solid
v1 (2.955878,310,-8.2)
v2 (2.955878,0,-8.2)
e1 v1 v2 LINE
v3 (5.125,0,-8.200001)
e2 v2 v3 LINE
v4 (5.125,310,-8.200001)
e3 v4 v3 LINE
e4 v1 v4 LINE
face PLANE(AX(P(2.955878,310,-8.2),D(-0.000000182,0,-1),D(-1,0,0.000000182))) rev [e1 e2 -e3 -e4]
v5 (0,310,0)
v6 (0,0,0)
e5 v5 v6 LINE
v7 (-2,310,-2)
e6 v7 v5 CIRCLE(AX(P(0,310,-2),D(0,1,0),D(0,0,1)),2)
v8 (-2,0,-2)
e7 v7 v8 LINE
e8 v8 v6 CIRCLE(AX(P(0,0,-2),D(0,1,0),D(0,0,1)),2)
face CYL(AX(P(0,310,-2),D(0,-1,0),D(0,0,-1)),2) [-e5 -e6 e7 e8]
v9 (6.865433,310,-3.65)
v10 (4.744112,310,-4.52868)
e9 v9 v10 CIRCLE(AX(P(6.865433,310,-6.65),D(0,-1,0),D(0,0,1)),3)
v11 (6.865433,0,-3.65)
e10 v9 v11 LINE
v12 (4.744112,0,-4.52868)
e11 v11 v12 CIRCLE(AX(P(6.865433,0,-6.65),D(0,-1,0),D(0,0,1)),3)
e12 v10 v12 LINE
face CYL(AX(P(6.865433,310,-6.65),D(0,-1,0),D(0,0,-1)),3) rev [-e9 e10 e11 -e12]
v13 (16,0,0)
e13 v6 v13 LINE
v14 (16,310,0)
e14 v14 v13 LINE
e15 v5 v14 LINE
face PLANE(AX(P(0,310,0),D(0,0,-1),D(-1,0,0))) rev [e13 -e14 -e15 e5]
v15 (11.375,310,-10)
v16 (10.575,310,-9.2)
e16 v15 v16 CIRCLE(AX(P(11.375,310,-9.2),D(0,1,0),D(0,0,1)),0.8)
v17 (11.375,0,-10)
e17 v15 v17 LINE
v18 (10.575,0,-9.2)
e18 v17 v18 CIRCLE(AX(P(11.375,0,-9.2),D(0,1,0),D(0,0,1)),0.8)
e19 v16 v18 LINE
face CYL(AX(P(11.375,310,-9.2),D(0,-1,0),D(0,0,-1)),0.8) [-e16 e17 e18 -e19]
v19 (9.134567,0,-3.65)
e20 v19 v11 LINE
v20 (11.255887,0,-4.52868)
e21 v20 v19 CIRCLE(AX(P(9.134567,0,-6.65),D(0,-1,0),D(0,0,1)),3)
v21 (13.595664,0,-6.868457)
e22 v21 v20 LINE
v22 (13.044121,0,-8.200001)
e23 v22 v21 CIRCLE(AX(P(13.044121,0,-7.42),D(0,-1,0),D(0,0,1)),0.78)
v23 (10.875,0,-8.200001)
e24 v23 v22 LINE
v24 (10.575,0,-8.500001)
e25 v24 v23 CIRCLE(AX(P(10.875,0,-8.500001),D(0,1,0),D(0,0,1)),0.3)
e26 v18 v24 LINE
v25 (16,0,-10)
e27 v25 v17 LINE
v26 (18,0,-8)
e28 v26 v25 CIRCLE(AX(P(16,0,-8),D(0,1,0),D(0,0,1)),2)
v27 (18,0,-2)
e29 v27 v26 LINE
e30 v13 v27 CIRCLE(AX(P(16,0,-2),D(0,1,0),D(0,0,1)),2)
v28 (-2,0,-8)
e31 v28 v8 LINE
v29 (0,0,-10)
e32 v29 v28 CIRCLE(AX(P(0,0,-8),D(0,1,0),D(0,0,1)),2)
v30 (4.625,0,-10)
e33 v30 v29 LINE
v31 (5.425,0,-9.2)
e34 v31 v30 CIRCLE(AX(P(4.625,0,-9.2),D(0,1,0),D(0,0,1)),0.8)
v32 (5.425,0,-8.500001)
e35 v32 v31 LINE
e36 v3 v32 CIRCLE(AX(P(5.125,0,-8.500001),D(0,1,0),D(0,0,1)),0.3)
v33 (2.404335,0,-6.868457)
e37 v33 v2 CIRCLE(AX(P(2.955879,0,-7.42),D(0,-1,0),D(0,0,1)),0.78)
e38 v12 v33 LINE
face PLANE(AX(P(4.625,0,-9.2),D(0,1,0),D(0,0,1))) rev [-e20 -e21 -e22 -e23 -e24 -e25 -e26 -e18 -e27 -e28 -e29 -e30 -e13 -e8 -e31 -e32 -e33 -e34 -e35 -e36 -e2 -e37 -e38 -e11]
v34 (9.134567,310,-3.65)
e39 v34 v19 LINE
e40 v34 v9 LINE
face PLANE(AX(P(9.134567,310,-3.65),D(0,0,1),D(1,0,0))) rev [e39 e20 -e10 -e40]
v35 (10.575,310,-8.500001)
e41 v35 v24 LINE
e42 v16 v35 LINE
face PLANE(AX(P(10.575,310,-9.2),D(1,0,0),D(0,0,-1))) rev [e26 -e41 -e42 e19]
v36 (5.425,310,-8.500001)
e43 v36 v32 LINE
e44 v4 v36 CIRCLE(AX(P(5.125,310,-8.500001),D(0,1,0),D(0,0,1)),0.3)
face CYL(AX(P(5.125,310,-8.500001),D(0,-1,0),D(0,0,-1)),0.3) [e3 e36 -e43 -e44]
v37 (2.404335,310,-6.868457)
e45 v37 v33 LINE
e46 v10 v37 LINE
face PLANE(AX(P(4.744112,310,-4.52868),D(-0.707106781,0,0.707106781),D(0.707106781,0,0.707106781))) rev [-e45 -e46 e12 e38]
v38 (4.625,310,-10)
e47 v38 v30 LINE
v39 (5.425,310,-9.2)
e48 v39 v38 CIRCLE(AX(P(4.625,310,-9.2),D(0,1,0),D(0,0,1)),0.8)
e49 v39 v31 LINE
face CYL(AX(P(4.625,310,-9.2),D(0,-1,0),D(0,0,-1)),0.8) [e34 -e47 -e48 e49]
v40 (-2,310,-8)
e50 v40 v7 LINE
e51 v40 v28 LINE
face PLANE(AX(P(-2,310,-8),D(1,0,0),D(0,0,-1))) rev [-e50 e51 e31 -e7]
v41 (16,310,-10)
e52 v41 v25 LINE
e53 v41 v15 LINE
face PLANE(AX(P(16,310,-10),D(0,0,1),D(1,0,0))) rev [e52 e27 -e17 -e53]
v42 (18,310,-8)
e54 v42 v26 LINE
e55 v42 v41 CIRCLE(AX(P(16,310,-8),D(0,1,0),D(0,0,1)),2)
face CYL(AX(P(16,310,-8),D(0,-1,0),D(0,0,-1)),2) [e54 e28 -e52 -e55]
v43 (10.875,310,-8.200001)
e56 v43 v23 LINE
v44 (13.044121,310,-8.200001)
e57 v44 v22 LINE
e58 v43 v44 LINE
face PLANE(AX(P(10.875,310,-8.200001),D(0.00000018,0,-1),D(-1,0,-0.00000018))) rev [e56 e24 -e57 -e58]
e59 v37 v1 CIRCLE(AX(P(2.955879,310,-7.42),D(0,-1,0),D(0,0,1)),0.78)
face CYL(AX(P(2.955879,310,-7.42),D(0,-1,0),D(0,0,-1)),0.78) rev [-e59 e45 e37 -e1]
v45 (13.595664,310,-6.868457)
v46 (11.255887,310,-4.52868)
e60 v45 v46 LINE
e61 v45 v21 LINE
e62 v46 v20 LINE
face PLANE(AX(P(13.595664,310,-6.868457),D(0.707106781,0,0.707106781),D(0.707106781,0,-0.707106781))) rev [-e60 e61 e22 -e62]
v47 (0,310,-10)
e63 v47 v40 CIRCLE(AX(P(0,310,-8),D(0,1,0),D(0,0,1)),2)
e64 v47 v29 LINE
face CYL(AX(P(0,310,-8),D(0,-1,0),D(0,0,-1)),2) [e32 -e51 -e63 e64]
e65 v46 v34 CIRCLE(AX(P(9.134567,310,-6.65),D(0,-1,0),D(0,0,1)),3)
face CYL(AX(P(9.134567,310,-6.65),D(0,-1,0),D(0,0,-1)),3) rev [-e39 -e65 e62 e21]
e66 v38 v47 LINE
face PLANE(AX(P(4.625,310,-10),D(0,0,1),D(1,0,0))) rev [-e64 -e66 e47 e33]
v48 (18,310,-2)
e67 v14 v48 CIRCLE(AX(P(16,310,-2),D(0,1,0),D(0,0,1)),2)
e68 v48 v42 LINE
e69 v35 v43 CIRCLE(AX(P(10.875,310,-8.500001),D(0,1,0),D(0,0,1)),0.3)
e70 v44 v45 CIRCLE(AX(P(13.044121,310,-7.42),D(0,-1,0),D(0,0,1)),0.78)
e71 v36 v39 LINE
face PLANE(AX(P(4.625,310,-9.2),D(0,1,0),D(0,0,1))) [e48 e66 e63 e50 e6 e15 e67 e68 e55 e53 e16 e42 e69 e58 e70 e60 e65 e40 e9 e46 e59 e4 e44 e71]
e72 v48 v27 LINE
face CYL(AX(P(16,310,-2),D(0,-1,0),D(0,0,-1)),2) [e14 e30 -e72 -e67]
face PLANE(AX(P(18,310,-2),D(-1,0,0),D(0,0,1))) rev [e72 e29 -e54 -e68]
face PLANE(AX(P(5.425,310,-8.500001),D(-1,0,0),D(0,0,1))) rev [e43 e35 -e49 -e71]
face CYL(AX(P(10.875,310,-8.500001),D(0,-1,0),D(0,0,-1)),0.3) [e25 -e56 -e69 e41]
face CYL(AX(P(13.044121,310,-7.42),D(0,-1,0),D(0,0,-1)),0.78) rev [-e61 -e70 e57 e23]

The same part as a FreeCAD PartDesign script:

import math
import FreeCAD as App
import Part
import Sketcher

doc = App.newDocument("Part")
params = doc.addObject("Spreadsheet::Sheet", "Params")
for row, (alias, value) in enumerate([
    ("sketch1_radius", "2 mm"),
    ("sketch1_radius2", "3 mm"),
    ("sketch1_radius3", "0.8 mm"),
    ("sketch1_radius4", "0.3 mm"),
    ("sketch1_width", "16 mm"),
    ("pad1_length", "310 mm"),
], start=1):
    params.set(f"A{row}", alias)
    params.set(f"B{row}", "=" + value)
    params.setAlias(f"B{row}", alias)

body = doc.addObject("PartDesign::Body", "Body")

sketch1 = doc.addObject("Sketcher::SketchObject", "Sketch")
body.addObject(sketch1)
sketch1.AttachmentSupport = (doc.XZ_Plane, [""])
sketch1.MapMode = "FlatFace"
sketch1.addGeometry([
    Part.LineSegment(App.Vector(4.625, -10, 0), App.Vector(0, -10, 0)),
    Part.ArcOfCircle(Part.Circle(App.Vector(0, -8, 0), App.Vector(0, 0, 1), 2), math.radians(-180), math.radians(-90)),
    Part.LineSegment(App.Vector(-2, -8, 0), App.Vector(-2, -2, 0)),
    Part.ArcOfCircle(Part.Circle(App.Vector(0, -2, 0), App.Vector(0, 0, 1), 2), math.radians(90), math.radians(180)),
    Part.LineSegment(App.Vector(0, 0, 0), App.Vector(16, 0, 0)),
    Part.ArcOfCircle(Part.Circle(App.Vector(16, -2, 0), App.Vector(0, 0, 1), 2), math.radians(0), math.radians(90)),
    Part.LineSegment(App.Vector(18, -2, 0), App.Vector(18, -8, 0)),
    Part.ArcOfCircle(Part.Circle(App.Vector(16, -8, 0), App.Vector(0, 0, 1), 2), math.radians(-90), math.radians(0.000004)),
    Part.LineSegment(App.Vector(16, -10, 0), App.Vector(11.375, -10, 0)),
    Part.ArcOfCircle(Part.Circle(App.Vector(11.375, -9.2, 0), App.Vector(0, 0, 1), 0.8), math.radians(180), math.radians(270)),
    Part.LineSegment(App.Vector(10.575, -9.2, 0), App.Vector(10.575, -8.500001, 0)),
    Part.ArcOfCircle(Part.Circle(App.Vector(10.875, -8.500001, 0), App.Vector(0, 0, 1), 0.3), math.radians(90.000011), math.radians(180)),
    Part.LineSegment(App.Vector(10.875, -8.200001, 0), App.Vector(13.044121, -8.200001, 0)),
    Part.ArcOfCircle(Part.Circle(App.Vector(13.044121, -7.42, 0), App.Vector(0, 0, 1), 0.78), math.radians(-89.99999), math.radians(45)),
    Part.LineSegment(App.Vector(13.595664, -6.868457, 0), App.Vector(11.255887, -4.52868, 0)),
    Part.ArcOfCircle(Part.Circle(App.Vector(9.134567, -6.65, 0), App.Vector(0, 0, 1), 3), math.radians(45), math.radians(90)),
    Part.LineSegment(App.Vector(9.134567, -3.65, 0), App.Vector(6.865433, -3.65, 0)),
    Part.ArcOfCircle(Part.Circle(App.Vector(6.865433, -6.65, 0), App.Vector(0, 0, 1), 3), math.radians(90), math.radians(135)),
    Part.LineSegment(App.Vector(4.744112, -4.52868, 0), App.Vector(2.404335, -6.868457, 0)),
    Part.ArcOfCircle(Part.Circle(App.Vector(2.955879, -7.42, 0), App.Vector(0, 0, 1), 0.78), math.radians(135), math.radians(269.99999)),
    Part.LineSegment(App.Vector(2.955878, -8.2, 0), App.Vector(5.125, -8.200001, 0)),
    Part.ArcOfCircle(Part.Circle(App.Vector(5.125, -8.500001, 0), App.Vector(0, 0, 1), 0.3), math.radians(0), math.radians(89.999989)),
    Part.LineSegment(App.Vector(5.425, -8.500001, 0), App.Vector(5.425, -9.2, 0)),
    Part.ArcOfCircle(Part.Circle(App.Vector(4.625, -9.2, 0), App.Vector(0, 0, 1), 0.8), math.radians(-90), math.radians(0)),
], False)
sketch1.addConstraint([
    Sketcher.Constraint("Tangent", 0, 2, 1, 2),
    Sketcher.Constraint("Tangent", 1, 1, 2, 1),
    Sketcher.Constraint("Tangent", 2, 2, 3, 2),
    Sketcher.Constraint("Tangent", 3, 1, 4, 1),
    Sketcher.Constraint("Tangent", 4, 2, 5, 2),
    Sketcher.Constraint("Tangent", 5, 1, 6, 1),
    Sketcher.Constraint("Tangent", 6, 2, 7, 2),
    Sketcher.Constraint("Tangent", 7, 1, 8, 1),
    Sketcher.Constraint("Tangent", 8, 2, 9, 2),
    Sketcher.Constraint("Tangent", 9, 1, 10, 1),
    Sketcher.Constraint("Tangent", 10, 2, 11, 2),
    Sketcher.Constraint("Tangent", 11, 1, 12, 1),
    Sketcher.Constraint("Tangent", 12, 2, 13, 1),
    Sketcher.Constraint("Tangent", 13, 2, 14, 1),
    Sketcher.Constraint("Tangent", 14, 2, 15, 1),
    Sketcher.Constraint("Tangent", 15, 2, 16, 1),
    Sketcher.Constraint("Tangent", 16, 2, 17, 1),
    Sketcher.Constraint("Tangent", 17, 2, 18, 1),
    Sketcher.Constraint("Tangent", 18, 2, 19, 1),
    Sketcher.Constraint("Tangent", 19, 2, 20, 1),
    Sketcher.Constraint("Tangent", 20, 2, 21, 2),
    Sketcher.Constraint("Tangent", 21, 1, 22, 1),
    Sketcher.Constraint("Tangent", 22, 2, 23, 2),
    Sketcher.Constraint("Tangent", 23, 1, 0, 1),
    Sketcher.Constraint("Horizontal", 0),
    Sketcher.Constraint("Vertical", 2),
    Sketcher.Constraint("Horizontal", 4),
    Sketcher.Constraint("Vertical", 6),
    Sketcher.Constraint("Horizontal", 8),
    Sketcher.Constraint("Vertical", 10),
    Sketcher.Constraint("Horizontal", 12),
    Sketcher.Constraint("Horizontal", 16),
    Sketcher.Constraint("Horizontal", 20),
    Sketcher.Constraint("Vertical", 22),
    Sketcher.Constraint("Coincident", 3, 1, -1, 1),
    Sketcher.Constraint("Equal", 1, 3),
    Sketcher.Constraint("Equal", 3, 5),
    Sketcher.Constraint("Equal", 5, 7),
    Sketcher.Constraint("Equal", 15, 17),
    Sketcher.Constraint("Equal", 13, 19),
    Sketcher.Constraint("Equal", 11, 21),
    Sketcher.Constraint("Equal", 9, 23),
    Sketcher.Constraint("Perpendicular", 14, 18),
    Sketcher.Constraint("Horizontal", 1, 3, 7, 3),
    Sketcher.Constraint("Horizontal", 13, 3, 19, 3),
    Sketcher.Constraint("Horizontal", 14, 2, 17, 2),
    Sketcher.Constraint("Equal", 0, 8),
    Sketcher.Constraint("Equal", 12, 20),
    Sketcher.Constraint("Radius", 1, 2.0),
    Sketcher.Constraint("Radius", 15, 3.0),
    Sketcher.Constraint("Radius", 9, 0.8),
    Sketcher.Constraint("Radius", 11, 0.3),
    Sketcher.Constraint("DistanceX", 4, 1, 4, 2, 16.0),
    Sketcher.Constraint("DistanceY", 2, 1, 2, 2, 6.0),
    Sketcher.Constraint("Radius", 13, 0.78),
    Sketcher.Constraint("DistanceY", 10, 1, 10, 2, 0.699999),
    Sketcher.Constraint("DistanceX", 0, 2, 0, 1, 4.625),
    Sketcher.Constraint("DistanceY", 15, 3, -1, 1, 6.65),
    Sketcher.Constraint("DistanceX", 12, 1, 12, 2, 2.169121),
])
sketch1.setExpression("Constraints[48]", "Params.sketch1_radius")
sketch1.setExpression("Constraints[49]", "Params.sketch1_radius2")
sketch1.setExpression("Constraints[50]", "Params.sketch1_radius3")
sketch1.setExpression("Constraints[51]", "Params.sketch1_radius4")
sketch1.setExpression("Constraints[52]", "Params.sketch1_width")
pad1 = doc.addObject("PartDesign::Pad", "Pad")
body.addObject(pad1)
pad1.Profile = sketch1
pad1.setExpression("Length", "Params.pad1_length")
pad1.Reversed = True

doc.recompute()
